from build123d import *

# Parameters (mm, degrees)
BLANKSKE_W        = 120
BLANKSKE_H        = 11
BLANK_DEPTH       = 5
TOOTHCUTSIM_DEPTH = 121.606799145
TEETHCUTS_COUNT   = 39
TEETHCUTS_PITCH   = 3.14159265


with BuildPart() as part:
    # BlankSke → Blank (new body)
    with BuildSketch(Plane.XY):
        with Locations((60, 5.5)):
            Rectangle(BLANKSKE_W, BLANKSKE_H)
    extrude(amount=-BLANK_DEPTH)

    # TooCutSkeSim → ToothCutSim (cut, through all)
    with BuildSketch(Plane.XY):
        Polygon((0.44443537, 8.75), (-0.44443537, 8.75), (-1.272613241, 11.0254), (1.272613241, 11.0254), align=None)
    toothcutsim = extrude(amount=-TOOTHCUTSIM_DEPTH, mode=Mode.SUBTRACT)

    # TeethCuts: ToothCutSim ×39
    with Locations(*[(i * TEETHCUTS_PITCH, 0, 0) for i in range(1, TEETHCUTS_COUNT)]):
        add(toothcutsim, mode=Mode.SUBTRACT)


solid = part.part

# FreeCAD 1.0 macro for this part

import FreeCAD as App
import Part
import Sketcher
Q = App.Units.Quantity


def add_polygon(sketch, points):
    """Adds a closed chain of lines whose ends are joined by coincident constraints."""
    first, n = sketch.GeometryCount, len(points)
    for a, b in zip(points, points[1:] + points[:1]):
        sketch.addGeometry(Part.LineSegment(App.Vector(*a, 0), App.Vector(*b, 0)), False)
    for i in range(n):
        sketch.addConstraint(Sketcher.Constraint("Coincident", first + i, 2, first + (i + 1) % n, 1))

doc = App.newDocument("Part")
body = doc.addObject("PartDesign::Body", "Body")

sketch1 = body.newObject("Sketcher::SketchObject", "Sketch")
sketch1.AttachmentSupport = (doc.getObject("XY_Plane"), [""])
sketch1.MapMode = "FlatFace"
add_polygon(sketch1, [(0, 11), (0, 0), (120, 0), (120, 11)])
sketch1.addConstraint([
    Sketcher.Constraint("Vertical", 0),
    Sketcher.Constraint("Horizontal", 1),
    Sketcher.Constraint("Vertical", 2),
    Sketcher.Constraint("Horizontal", 3),
    Sketcher.Constraint("Coincident", 0, 2, -1, 1),
    Sketcher.Constraint("DistanceX", 1, 1, 1, 2, Q("120 mm")),
    Sketcher.Constraint("DistanceY", 0, 2, 0, 1, Q("11 mm")),
])
pad1 = body.newObject("PartDesign::Pad", "Pad")
pad1.Profile = sketch1
pad1.Length = 5
pad1.Reversed = True

sketch2 = body.newObject("Sketcher::SketchObject", "Sketch001")
sketch2.AttachmentSupport = (doc.getObject("XY_Plane"), [""])
sketch2.MapMode = "FlatFace"
add_polygon(sketch2, [(-0.4, 8.8), (0.4, 8.8), (1.3, 11), (-1.3, 11)])
sketch2.addConstraint([
    Sketcher.Constraint("Horizontal", 0),
    Sketcher.Constraint("Horizontal", 2),
    Sketcher.Constraint("Equal", 1, 3),
    Sketcher.Constraint("Angle", 1, Q("70 deg")),
    Sketcher.Constraint("DistanceY", -1, 1, 0, 2, Q("8.75 mm")),
    Sketcher.Constraint("DistanceX", 0, 1, 0, 2, Q("0.888871 mm")),
    Sketcher.Constraint("DistanceY", -1, 1, 1, 2, Q("11.0254 mm")),
    Sketcher.Constraint("DistanceX", -1, 1, 0, 2, Q("0.444435 mm")),
])
pocket1 = body.newObject("PartDesign::Pocket", "Pocket")
pocket1.Profile = sketch2
pocket1.Type = "ThroughAll"
doc.recompute()

linearpattern = body.newObject("PartDesign::LinearPattern", "LinearPattern")
linearpattern.Originals = [pocket1]
linearpattern.Direction = (doc.getObject("X_Axis"), [""])
linearpattern.Mode = "offset"
linearpattern.Offset = 3.141593
linearpattern.Occurrences = 39
body.Tip = linearpattern

doc.recompute()
